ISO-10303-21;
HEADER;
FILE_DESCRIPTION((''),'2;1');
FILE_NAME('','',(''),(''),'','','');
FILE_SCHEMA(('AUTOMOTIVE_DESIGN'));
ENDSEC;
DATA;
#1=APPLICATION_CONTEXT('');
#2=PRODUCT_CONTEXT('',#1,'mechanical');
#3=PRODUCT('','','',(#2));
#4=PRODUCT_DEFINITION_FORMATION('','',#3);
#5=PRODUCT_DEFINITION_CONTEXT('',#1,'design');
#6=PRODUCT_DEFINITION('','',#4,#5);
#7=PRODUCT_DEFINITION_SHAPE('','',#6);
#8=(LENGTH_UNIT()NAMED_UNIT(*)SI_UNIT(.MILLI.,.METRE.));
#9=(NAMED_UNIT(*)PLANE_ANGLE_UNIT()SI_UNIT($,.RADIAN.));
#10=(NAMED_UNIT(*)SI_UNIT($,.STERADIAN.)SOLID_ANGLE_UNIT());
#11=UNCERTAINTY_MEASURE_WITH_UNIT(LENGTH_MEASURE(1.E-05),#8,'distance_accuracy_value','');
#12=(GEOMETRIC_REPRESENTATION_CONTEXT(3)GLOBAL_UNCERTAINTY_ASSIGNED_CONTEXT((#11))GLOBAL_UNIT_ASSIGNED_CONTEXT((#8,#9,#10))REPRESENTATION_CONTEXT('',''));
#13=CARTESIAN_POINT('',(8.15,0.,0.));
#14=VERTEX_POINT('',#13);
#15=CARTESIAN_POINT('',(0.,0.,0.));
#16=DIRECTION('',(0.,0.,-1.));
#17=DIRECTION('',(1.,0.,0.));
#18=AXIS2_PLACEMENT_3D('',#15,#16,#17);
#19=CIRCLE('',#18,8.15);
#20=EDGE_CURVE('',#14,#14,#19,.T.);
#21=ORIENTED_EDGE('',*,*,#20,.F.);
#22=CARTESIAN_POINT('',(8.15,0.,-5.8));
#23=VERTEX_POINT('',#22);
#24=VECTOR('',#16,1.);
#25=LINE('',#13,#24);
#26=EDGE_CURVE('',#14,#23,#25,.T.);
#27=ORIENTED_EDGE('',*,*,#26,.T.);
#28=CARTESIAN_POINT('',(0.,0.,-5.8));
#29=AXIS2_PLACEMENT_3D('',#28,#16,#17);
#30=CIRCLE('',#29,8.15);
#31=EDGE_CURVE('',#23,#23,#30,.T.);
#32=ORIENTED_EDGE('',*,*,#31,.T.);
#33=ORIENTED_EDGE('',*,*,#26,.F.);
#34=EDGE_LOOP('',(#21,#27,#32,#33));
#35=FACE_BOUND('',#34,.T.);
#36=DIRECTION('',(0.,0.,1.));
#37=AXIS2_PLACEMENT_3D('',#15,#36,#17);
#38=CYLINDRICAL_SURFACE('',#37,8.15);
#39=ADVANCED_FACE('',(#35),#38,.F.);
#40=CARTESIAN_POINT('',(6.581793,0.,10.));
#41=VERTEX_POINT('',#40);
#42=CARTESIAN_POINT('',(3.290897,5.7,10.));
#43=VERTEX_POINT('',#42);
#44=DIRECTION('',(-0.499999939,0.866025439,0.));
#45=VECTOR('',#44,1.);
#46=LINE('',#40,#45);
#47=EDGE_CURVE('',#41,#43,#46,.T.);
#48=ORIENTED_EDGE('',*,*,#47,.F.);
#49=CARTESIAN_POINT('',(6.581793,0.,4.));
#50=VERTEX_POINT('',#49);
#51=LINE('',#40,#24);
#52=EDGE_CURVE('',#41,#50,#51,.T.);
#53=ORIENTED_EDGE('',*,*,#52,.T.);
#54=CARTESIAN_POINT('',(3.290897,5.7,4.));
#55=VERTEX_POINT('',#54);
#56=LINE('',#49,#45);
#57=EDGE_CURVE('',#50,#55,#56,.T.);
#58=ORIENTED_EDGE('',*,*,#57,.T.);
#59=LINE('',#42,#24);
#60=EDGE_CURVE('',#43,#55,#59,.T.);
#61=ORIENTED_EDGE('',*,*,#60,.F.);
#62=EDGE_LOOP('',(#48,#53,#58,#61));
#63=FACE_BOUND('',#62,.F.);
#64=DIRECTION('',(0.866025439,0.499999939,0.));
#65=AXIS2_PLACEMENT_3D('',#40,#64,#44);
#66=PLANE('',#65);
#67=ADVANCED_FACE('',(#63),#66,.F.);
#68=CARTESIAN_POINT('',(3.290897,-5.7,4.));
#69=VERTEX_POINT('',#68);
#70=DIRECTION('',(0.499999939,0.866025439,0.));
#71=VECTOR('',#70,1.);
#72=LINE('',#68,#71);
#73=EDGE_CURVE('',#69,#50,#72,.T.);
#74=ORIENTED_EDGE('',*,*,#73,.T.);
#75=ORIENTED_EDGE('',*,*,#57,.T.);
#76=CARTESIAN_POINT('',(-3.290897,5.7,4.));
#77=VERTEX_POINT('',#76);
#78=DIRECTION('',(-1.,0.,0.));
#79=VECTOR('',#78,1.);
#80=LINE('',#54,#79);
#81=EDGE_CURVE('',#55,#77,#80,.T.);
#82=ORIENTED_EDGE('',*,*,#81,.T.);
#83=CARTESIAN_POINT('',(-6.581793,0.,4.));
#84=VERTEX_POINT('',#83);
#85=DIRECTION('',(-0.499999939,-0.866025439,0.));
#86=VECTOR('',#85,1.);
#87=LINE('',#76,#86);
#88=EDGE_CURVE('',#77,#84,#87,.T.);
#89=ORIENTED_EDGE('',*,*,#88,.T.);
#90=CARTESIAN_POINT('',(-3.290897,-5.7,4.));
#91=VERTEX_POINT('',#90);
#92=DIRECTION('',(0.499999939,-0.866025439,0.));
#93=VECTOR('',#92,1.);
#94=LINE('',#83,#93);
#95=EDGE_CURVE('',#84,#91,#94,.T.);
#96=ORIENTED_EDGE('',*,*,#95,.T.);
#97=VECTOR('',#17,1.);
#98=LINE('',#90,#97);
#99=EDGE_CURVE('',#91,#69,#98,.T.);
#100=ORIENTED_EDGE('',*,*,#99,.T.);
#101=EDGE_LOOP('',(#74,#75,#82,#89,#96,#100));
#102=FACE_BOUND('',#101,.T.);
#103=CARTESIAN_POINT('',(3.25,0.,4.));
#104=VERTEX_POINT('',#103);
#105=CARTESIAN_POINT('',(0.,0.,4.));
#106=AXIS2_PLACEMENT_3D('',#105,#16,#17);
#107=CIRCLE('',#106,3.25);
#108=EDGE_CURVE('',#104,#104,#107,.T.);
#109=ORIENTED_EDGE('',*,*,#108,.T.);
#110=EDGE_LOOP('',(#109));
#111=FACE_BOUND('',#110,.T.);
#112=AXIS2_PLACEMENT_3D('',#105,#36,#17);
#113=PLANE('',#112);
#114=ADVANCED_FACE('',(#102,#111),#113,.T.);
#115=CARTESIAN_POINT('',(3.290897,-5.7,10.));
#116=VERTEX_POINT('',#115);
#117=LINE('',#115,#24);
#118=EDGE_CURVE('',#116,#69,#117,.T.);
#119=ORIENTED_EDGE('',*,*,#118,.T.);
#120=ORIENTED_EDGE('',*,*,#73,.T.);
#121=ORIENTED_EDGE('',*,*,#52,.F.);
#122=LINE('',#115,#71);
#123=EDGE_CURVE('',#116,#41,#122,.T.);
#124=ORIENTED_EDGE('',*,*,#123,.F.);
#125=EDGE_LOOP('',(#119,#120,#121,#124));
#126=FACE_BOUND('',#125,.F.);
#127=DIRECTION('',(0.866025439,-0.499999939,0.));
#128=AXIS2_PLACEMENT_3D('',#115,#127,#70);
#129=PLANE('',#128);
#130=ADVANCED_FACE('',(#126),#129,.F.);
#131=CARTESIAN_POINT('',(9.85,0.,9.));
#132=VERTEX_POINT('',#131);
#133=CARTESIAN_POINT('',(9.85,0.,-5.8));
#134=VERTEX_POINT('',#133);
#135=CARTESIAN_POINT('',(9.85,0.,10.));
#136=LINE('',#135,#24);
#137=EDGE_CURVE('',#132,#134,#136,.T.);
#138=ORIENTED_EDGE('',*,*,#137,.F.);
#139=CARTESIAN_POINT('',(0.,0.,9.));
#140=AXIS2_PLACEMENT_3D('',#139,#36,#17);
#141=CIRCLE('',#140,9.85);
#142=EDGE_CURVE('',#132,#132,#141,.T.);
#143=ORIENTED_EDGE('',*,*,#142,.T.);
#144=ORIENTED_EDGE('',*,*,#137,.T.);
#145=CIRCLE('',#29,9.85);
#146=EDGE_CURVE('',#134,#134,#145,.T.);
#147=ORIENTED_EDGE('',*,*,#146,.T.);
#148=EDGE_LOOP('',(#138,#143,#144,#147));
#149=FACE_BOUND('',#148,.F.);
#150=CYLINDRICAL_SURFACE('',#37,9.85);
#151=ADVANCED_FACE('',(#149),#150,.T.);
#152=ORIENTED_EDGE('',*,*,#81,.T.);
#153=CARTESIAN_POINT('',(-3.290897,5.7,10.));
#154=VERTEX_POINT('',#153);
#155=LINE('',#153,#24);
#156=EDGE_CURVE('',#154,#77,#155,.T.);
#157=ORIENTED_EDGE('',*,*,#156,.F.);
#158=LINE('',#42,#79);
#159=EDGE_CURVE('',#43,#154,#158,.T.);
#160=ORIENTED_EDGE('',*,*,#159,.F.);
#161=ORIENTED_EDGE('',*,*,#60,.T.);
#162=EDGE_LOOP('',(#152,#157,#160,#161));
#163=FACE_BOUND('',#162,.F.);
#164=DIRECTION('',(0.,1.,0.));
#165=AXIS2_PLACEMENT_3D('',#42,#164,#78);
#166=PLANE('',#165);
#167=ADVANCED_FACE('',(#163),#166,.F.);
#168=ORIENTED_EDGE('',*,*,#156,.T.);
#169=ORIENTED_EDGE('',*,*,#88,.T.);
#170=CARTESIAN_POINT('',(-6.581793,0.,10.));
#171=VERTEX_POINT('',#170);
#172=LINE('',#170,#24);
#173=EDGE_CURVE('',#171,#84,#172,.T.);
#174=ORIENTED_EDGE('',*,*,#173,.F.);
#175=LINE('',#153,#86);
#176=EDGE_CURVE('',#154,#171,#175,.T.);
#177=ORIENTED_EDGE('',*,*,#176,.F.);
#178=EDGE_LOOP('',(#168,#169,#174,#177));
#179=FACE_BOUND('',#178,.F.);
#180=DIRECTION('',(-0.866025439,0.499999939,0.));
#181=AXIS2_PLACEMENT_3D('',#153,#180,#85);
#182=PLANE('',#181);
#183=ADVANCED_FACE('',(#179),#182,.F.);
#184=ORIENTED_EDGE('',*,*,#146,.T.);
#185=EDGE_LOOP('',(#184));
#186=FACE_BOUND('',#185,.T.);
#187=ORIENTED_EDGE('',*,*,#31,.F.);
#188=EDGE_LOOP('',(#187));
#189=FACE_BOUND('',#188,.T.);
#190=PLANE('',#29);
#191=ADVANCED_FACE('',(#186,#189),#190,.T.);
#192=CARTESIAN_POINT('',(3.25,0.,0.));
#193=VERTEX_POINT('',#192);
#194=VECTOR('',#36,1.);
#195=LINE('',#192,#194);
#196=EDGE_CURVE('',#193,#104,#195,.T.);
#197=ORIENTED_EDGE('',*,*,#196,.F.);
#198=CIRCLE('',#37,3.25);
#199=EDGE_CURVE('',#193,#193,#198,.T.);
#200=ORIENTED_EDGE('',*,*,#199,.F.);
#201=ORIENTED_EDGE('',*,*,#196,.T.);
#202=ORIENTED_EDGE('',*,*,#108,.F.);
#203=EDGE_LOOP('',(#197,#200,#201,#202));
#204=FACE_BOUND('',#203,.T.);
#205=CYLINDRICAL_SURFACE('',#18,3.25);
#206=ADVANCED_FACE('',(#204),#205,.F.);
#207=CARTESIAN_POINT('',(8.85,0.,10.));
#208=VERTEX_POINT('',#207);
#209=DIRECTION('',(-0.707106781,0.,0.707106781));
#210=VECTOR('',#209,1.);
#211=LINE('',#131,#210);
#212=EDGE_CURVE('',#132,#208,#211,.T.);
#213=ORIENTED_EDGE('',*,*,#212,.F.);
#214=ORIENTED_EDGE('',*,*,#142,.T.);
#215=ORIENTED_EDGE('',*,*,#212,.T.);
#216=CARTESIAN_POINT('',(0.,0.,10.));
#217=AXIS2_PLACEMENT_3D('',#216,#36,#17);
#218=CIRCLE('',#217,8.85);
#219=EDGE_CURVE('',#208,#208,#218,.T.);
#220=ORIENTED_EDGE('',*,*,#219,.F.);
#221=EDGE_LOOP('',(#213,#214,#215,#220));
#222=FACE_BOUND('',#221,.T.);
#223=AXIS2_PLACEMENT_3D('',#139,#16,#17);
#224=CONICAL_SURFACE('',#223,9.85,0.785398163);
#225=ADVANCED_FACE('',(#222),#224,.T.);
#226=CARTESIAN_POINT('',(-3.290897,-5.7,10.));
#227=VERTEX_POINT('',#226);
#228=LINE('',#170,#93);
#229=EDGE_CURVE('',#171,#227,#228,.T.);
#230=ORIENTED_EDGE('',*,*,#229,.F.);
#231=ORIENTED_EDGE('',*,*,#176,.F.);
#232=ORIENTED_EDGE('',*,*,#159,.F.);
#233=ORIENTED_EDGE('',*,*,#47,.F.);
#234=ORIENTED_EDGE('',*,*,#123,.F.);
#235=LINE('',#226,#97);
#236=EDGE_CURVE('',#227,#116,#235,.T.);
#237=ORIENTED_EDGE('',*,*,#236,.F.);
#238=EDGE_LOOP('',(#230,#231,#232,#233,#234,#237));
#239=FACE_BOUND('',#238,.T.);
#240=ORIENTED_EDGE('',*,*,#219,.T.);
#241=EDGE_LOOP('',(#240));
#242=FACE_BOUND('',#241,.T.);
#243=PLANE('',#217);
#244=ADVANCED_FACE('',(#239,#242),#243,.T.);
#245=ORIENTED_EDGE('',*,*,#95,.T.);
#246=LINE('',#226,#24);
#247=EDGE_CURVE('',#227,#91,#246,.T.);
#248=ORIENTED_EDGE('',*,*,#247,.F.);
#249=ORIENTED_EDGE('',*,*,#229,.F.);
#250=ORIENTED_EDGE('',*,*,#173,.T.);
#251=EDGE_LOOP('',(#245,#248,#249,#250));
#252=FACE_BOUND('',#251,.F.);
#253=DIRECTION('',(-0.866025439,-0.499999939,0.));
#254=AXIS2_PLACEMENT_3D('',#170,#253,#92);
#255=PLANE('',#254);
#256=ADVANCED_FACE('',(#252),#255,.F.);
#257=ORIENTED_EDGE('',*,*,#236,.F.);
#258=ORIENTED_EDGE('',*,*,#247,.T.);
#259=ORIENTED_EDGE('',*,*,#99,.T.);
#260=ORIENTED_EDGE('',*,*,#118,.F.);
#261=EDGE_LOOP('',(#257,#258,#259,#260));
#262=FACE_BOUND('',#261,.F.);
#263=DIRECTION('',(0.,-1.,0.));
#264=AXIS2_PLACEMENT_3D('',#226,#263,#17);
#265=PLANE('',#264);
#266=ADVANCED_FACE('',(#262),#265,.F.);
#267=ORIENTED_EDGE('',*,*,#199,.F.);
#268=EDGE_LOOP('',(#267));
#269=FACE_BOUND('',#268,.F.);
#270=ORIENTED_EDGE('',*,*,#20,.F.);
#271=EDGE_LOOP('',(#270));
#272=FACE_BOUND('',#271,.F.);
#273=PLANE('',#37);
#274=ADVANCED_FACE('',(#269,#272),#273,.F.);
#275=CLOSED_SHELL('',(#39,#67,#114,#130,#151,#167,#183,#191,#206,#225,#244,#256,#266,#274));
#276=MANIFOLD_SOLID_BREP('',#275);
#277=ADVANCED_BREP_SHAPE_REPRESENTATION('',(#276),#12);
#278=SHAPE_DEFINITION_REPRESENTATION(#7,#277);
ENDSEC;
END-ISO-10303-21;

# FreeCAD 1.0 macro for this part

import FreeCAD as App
import Part
import Sketcher
from FreeCAD import Vector
Q = App.Units.Quantity


def edges_at(feature, points):
    """Names of the edges that pass closest to the given points."""
    edges = feature.Shape.Edges
    near = lambda p: min(range(len(edges)), key=lambda i: edges[i].distToShape(Part.Vertex(*p))[0])
    return sorted({f"Edge{near(p) + 1}" for p in points})


def add_polygon(sketch, points):
    """Adds a closed chain of lines whose ends are joined by coincident constraints."""
    first, n = sketch.GeometryCount, len(points)
    for a, b in zip(points, points[1:] + points[:1]):
        sketch.addGeometry(Part.LineSegment(App.Vector(*a, 0), App.Vector(*b, 0)), False)
    for i in range(n):
        sketch.addConstraint(Sketcher.Constraint("Coincident", first + i, 2, first + (i + 1) % n, 1))

doc = App.newDocument("Part")
body = doc.addObject("PartDesign::Body", "Body")

# Sketch on XY plane
sketch1 = body.newObject("Sketcher::SketchObject", "Sketch")
sketch1.AttachmentSupport = (doc.getObject("XY_Plane"), [""])
sketch1.MapMode = "FlatFace"
sketch1.addGeometry([
    Part.Circle(Vector(0, 0, 0), Vector(0, 0, 1), 9.8),
    Part.Circle(Vector(0, 0, 0), Vector(0, 0, 1), 3.2),
], False)
sketch1.addConstraint([
    Sketcher.Constraint("Coincident", 0, 3, -1, 1),
    Sketcher.Constraint("Coincident", 1, 3, -1, 1),
    Sketcher.Constraint("Diameter", 0, 19.7),
    Sketcher.Constraint("Diameter", 1, 6.5),
])
pad1 = body.newObject("PartDesign::Pad", "Pad")
pad1.Profile = sketch1
pad1.Length = 10

# Sketch on XY plane
sketch2 = body.newObject("Sketcher::SketchObject", "Sketch001")
sketch2.AttachmentSupport = (doc.getObject("XY_Plane"), [""])
sketch2.MapMode = "FlatFace"
sketch2.addGeometry([
    Part.Circle(Vector(0, 0, 0), Vector(0, 0, 1), 10),
    Part.Circle(Vector(0, 0, 0), Vector(0, 0, 1), 8),
], False)
sketch2.addConstraint([
    Sketcher.Constraint("Coincident", 0, 3, -1, 1),
    Sketcher.Constraint("Coincident", 1, 3, -1, 1),
    Sketcher.Constraint("Diameter", 0, 19.7),
    Sketcher.Constraint("Diameter", 1, 16.3),
])
pad2 = body.newObject("PartDesign::Pad", "Pad001")
pad2.Profile = sketch2
pad2.Length = 5.8
pad2.Reversed = True

# Sketch on XY plane
sketch3 = body.newObject("Sketcher::SketchObject", "Sketch002")
sketch3.AttachmentSupport = (doc.getObject("XY_Plane"), [""])
sketch3.MapMode = "FlatFace"
sketch3.AttachmentOffset = App.Placement(Vector(0, 0, 10), App.Rotation())
add_polygon(sketch3, [(7, 0), (3, 6), (-3, 6), (-7, 0), (-3, -6), (3, -6)])  # lines 0-5
sketch3.addConstraint([
    Sketcher.Constraint("Horizontal", 1),
    Sketcher.Constraint("Horizontal", 4),
    Sketcher.Constraint("Symmetric", 0, 2, 3, 2, -1, 1),
    Sketcher.Constraint("Symmetric", 2, 2, 5, 2, -1, 1),
    Sketcher.Constraint("PointOnObject", 2, 2, -1),
    Sketcher.Constraint("Parallel", 2, 5),
    Sketcher.Constraint("Vertical", 1, 2, 3, 2),
    Sketcher.Constraint("Angle", 0, Q("119.999996 deg")),
    Sketcher.Constraint("DistanceY", -1, 1, 0, 2, 5.7),
    Sketcher.Constraint("DistanceX", 1, 2, 1, 1, 6.581794),
])
pocket1 = body.newObject("PartDesign::Pocket", "Pocket")
pocket1.Profile = sketch3
pocket1.Length = 6
doc.recompute()

chamfer = body.newObject("PartDesign::Chamfer", "Chamfer")
chamfer.Base = (pocket1, edges_at(pocket1, [(-9.85, 0, 10)]))
chamfer.Size = 1

doc.recompute()
